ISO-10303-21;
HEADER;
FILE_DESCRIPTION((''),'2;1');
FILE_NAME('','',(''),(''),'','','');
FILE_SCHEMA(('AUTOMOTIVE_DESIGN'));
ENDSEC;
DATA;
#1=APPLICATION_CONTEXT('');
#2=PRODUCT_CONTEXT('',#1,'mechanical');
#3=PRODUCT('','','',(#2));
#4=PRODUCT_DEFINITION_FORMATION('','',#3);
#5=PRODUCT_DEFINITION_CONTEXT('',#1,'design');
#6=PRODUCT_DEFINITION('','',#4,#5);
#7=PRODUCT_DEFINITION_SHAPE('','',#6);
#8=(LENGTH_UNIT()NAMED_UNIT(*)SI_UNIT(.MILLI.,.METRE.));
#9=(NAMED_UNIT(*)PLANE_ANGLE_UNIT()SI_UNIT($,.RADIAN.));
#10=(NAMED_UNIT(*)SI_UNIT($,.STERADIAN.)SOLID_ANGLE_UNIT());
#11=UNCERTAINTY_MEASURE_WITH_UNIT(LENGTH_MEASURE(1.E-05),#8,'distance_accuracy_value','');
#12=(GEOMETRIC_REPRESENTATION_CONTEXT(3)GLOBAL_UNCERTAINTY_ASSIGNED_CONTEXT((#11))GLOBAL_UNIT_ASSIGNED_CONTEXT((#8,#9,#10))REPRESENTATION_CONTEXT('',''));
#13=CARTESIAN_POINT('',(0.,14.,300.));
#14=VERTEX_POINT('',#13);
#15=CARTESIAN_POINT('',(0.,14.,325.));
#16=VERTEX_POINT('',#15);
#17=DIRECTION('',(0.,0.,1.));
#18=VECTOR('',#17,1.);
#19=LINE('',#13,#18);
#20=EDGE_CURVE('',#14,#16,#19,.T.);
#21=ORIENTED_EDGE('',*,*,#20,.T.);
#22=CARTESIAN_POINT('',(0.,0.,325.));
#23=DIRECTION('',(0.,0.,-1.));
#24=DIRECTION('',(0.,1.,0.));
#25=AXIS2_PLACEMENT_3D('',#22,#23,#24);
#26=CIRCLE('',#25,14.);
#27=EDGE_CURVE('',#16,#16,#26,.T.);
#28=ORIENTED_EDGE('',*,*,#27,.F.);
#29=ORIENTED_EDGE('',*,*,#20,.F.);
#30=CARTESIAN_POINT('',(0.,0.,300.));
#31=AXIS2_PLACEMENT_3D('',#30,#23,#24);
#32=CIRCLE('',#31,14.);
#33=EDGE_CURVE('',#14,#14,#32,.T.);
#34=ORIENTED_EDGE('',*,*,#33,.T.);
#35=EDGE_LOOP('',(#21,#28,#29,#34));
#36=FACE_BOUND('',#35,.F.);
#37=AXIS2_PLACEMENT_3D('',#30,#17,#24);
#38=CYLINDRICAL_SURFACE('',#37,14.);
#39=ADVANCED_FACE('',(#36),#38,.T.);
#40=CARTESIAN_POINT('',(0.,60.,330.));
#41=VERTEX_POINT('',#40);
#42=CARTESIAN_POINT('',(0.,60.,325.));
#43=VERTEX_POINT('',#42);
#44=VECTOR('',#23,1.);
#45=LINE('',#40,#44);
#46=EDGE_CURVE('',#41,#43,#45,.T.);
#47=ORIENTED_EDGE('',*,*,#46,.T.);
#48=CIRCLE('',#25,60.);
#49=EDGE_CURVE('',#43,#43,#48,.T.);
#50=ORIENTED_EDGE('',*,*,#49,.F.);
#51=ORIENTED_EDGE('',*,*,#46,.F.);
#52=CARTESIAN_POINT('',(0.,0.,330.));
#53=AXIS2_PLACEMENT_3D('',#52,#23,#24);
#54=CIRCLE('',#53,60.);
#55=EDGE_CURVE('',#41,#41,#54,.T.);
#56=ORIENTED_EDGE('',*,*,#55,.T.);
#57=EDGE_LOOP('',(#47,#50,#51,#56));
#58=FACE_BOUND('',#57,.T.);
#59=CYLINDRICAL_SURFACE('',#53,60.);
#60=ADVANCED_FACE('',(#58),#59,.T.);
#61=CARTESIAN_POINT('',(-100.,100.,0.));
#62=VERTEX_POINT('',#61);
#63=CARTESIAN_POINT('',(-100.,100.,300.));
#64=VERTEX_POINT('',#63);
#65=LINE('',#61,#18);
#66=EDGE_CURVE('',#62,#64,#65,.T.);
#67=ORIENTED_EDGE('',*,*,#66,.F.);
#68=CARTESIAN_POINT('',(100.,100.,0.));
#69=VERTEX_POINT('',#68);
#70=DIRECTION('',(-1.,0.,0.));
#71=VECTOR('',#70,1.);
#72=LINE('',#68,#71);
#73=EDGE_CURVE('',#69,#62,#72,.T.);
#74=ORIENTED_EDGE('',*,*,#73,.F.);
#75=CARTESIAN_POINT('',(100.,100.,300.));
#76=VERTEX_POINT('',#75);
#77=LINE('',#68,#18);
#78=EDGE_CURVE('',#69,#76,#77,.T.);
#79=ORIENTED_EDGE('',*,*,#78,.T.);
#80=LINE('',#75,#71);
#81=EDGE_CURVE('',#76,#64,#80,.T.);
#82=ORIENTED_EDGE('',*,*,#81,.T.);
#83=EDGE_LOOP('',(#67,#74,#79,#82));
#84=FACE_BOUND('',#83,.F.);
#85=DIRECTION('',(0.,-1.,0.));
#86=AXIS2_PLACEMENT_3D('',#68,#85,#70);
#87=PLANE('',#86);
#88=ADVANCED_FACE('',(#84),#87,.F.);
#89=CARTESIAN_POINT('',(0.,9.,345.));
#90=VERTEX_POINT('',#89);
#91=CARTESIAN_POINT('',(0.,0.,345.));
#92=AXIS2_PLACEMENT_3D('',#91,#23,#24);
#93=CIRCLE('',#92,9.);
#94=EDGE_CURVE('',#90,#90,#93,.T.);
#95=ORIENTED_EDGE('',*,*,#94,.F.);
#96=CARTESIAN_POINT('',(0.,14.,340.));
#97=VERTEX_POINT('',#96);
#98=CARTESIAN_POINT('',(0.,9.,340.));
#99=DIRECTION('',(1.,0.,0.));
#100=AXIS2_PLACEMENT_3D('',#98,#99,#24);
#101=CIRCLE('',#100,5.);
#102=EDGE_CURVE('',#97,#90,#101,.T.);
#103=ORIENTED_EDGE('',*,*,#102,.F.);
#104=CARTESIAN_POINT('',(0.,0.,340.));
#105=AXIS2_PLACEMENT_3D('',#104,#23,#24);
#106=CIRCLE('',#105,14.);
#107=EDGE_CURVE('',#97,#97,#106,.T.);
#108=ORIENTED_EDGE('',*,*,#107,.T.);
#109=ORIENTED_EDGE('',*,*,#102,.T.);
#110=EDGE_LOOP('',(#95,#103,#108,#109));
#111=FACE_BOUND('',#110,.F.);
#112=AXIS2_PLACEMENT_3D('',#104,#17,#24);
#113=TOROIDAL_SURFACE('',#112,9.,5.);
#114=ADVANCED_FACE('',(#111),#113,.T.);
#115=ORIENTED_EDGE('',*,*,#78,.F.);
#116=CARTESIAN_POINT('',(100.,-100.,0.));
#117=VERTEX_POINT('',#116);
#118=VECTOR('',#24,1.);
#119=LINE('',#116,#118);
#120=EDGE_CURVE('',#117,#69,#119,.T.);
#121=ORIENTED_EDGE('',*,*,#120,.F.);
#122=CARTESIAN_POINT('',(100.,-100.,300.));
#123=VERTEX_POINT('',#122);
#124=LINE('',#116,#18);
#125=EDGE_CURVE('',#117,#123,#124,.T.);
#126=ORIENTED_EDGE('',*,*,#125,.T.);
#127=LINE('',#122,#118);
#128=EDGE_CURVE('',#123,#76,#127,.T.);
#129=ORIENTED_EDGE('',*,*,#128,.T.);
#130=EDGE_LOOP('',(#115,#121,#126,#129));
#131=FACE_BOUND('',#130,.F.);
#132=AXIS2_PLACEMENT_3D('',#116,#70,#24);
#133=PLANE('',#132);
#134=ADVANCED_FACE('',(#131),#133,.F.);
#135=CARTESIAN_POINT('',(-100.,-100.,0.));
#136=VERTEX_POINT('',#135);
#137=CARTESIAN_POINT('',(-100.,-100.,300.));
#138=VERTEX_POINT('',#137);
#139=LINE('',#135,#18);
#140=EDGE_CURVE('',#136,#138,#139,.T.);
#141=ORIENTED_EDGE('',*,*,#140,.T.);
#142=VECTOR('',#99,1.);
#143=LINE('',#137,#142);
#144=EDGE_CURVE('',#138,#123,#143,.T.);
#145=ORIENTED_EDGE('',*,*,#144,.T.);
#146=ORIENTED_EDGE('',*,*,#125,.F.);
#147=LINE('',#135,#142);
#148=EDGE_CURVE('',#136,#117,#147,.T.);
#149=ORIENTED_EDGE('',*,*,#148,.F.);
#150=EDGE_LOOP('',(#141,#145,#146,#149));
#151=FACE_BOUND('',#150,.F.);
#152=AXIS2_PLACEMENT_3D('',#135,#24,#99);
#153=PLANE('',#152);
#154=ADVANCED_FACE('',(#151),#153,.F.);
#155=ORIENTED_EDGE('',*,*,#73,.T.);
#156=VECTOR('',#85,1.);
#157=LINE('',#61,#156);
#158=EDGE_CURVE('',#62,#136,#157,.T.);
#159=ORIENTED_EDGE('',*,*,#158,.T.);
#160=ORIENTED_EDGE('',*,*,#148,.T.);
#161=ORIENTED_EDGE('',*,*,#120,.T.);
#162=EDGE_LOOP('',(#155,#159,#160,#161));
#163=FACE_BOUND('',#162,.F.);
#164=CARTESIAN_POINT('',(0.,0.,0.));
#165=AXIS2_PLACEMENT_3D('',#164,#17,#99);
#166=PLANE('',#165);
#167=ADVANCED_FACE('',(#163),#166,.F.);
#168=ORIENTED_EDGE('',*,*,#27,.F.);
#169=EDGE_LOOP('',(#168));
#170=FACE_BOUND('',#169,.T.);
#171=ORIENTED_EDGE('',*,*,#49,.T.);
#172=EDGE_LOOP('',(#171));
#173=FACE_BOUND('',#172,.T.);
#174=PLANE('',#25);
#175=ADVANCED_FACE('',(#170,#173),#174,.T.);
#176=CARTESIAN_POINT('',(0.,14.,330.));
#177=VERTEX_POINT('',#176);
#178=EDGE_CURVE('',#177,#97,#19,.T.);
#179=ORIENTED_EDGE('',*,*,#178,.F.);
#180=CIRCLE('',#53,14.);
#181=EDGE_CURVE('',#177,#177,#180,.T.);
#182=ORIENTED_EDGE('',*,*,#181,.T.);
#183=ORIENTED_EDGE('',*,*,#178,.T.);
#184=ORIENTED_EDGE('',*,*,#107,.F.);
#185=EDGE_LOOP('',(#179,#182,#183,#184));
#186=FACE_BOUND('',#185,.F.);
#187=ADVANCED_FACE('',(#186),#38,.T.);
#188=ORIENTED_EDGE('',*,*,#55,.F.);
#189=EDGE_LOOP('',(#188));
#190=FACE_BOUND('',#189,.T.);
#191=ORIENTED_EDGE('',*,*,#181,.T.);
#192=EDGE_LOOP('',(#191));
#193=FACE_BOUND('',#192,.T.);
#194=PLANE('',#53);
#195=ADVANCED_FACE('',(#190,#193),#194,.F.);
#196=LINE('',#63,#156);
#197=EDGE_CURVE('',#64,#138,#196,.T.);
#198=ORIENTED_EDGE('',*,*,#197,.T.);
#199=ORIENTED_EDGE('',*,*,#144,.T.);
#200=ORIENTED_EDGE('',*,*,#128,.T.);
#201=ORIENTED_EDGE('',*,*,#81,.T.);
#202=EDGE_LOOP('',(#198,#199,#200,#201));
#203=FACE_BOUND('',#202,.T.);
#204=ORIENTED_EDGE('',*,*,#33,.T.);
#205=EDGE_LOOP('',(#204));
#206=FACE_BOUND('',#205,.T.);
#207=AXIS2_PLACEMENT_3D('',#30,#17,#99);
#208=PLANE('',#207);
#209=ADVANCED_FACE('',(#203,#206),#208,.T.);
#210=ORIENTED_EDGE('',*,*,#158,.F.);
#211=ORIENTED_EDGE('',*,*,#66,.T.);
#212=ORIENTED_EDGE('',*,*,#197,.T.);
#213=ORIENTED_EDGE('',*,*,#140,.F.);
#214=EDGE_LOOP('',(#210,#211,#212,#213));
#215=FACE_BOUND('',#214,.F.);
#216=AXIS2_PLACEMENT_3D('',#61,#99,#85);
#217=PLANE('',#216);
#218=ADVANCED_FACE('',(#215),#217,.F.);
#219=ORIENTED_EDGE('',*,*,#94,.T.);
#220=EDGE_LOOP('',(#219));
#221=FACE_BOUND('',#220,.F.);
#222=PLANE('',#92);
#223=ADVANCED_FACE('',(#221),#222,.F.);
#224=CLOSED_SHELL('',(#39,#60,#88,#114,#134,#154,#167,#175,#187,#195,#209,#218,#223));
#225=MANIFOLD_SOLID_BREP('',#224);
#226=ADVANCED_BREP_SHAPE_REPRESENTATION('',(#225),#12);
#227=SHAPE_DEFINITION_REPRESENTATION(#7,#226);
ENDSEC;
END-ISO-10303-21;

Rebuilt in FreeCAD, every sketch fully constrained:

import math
import FreeCAD as App
import Part
import Sketcher
from FreeCAD import Vector
Q = App.Units.Quantity

doc = App.newDocument("Part")
params = doc.addObject("Spreadsheet::Sheet", "Params")
for row, (alias, value) in enumerate([
    ("sketch1_width", "200 mm"),
    ("pad1_length", "300 mm"),
    ("sketch2_radius", "5 mm"),
    ("sketch2_width", "14 mm"),
    ("sketch2_height", "25 mm"),
    ("sketch2_height2", "5 mm"),
    ("sketch2_height3", "45 mm"),
    ("revolution_angle", "360 deg"),
], start=1):
    params.set(f"A{row}", alias)
    params.set(f"B{row}", "=" + value)
    params.setAlias(f"B{row}", alias)

body = doc.addObject("PartDesign::Body", "Body")

# Sketch on XY plane
sketch1 = doc.addObject("Sketcher::SketchObject", "Sketch")
body.addObject(sketch1)
sketch1.AttachmentSupport = (doc.XY_Plane, [""])
sketch1.MapMode = "FlatFace"
sketch1.addGeometry([
    Part.LineSegment(Vector(-100, 100, 0), Vector(-100, -100, 0)),
    Part.LineSegment(Vector(-100, -100, 0), Vector(100, -100, 0)),
    Part.LineSegment(Vector(100, -100, 0), Vector(100, 100, 0)),
    Part.LineSegment(Vector(100, 100, 0), Vector(-100, 100, 0)),
], False)
sketch1.addConstraint([
    Sketcher.Constraint("Coincident", 0, 2, 1, 1),
    Sketcher.Constraint("Coincident", 1, 2, 2, 1),
    Sketcher.Constraint("Coincident", 2, 2, 3, 1),
    Sketcher.Constraint("Coincident", 3, 2, 0, 1),
    Sketcher.Constraint("Vertical", 0),
    Sketcher.Constraint("Horizontal", 1),
    Sketcher.Constraint("Vertical", 2),
    Sketcher.Constraint("Horizontal", 3),
    Sketcher.Constraint("Symmetric", 0, 2, 2, 2, -1, 1),
    Sketcher.Constraint("Equal", 3, 0),
    Sketcher.Constraint("DistanceX", 1, 1, 1, 2, Q("200 mm")),
])
sketch1.setExpression("Constraints[10]", "Params.sketch1_width")
pad1 = doc.addObject("PartDesign::Pad", "Pad")
body.addObject(pad1)
pad1.Profile = sketch1
pad1.setExpression("Length", "Params.pad1_length")

# Sketch on YZ plane
sketch2 = doc.addObject("Sketcher::SketchObject", "Sketch001")
body.addObject(sketch2)
sketch2.AttachmentSupport = (doc.YZ_Plane, [""])
sketch2.MapMode = "FlatFace"
sketch2.addGeometry([
    Part.LineSegment(Vector(0, 300, 0), Vector(14, 300, 0)),  # 0
    Part.LineSegment(Vector(14, 300, 0), Vector(14, 325, 0)),  # 1
    Part.LineSegment(Vector(14, 325, 0), Vector(60, 325, 0)),  # 2
    Part.LineSegment(Vector(60, 325, 0), Vector(60, 330, 0)),  # 3
    Part.LineSegment(Vector(60, 330, 0), Vector(14, 330, 0)),  # 4
    Part.LineSegment(Vector(14, 330, 0), Vector(14, 340, 0)),  # 5
    Part.ArcOfCircle(Part.Circle(Vector(9, 340, 0), Vector(0, 0, 1), 5), math.radians(0), math.radians(90)),  # 6
    Part.LineSegment(Vector(9, 345, 0), Vector(0, 345, 0)),  # 7
    Part.LineSegment(Vector(0, 345, 0), Vector(0, 300, 0)),  # 8
], False)
sketch2.addConstraint([
    Sketcher.Constraint("Coincident", 0, 2, 1, 1),
    Sketcher.Constraint("Coincident", 1, 2, 2, 1),
    Sketcher.Constraint("Coincident", 2, 2, 3, 1),
    Sketcher.Constraint("Coincident", 3, 2, 4, 1),
    Sketcher.Constraint("Coincident", 4, 2, 5, 1),
    Sketcher.Constraint("Tangent", 5, 2, 6, 1),
    Sketcher.Constraint("Tangent", 6, 2, 7, 1),
    Sketcher.Constraint("Coincident", 7, 2, 8, 1),
    Sketcher.Constraint("Coincident", 8, 2, 0, 1),
    Sketcher.Constraint("Horizontal", 0),
    Sketcher.Constraint("Vertical", 1),
    Sketcher.Constraint("Horizontal", 2),
    Sketcher.Constraint("Vertical", 3),
    Sketcher.Constraint("Horizontal", 4),
    Sketcher.Constraint("Vertical", 5),
    Sketcher.Constraint("Horizontal", 7),
    Sketcher.Constraint("Vertical", 8),
    Sketcher.Constraint("PointOnObject", 7, 2, -2),
    Sketcher.Constraint("Vertical", 1, 2, 4, 2),
    Sketcher.Constraint("Radius", 6, Q("5 mm")),
    Sketcher.Constraint("DistanceX", 0, 1, 0, 2, Q("14 mm")),
    Sketcher.Constraint("DistanceY", 1, 1, 1, 2, Q("25 mm")),
    Sketcher.Constraint("DistanceY", 3, 1, 3, 2, Q("5 mm")),
    Sketcher.Constraint("DistanceY", 8, 2, 8, 1, Q("45 mm")),
    Sketcher.Constraint("DistanceX", -1, 1, 2, 2, Q("60 mm")),
    Sketcher.Constraint("DistanceY", -1, 1, 6, 3, Q("340 mm")),
])
sketch2.setExpression("Constraints[19]", "Params.sketch2_radius")
sketch2.setExpression("Constraints[20]", "Params.sketch2_width")
sketch2.setExpression("Constraints[21]", "Params.sketch2_height")
sketch2.setExpression("Constraints[22]", "Params.sketch2_height2")
sketch2.setExpression("Constraints[23]", "Params.sketch2_height3")
revolution = doc.addObject("PartDesign::Revolution", "Revolution")
body.addObject(revolution)
revolution.Profile = sketch2
revolution.ReferenceAxis = (sketch2, ["V_Axis"])
revolution.setExpression("Angle", "Params.revolution_angle")

doc.recompute()
